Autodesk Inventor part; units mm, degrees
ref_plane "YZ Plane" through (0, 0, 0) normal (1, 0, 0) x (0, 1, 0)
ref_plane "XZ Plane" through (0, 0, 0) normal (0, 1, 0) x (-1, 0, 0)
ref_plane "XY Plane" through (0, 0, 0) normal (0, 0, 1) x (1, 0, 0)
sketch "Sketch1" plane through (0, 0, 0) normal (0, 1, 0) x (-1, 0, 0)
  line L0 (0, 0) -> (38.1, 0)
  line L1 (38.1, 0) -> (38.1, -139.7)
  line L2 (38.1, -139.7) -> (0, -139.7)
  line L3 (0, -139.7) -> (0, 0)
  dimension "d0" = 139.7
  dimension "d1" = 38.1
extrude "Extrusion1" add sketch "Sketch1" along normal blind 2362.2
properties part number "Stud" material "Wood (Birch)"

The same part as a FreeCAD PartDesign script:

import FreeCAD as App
import Part
import Sketcher
from FreeCAD import Vector
Q = App.Units.Quantity

doc = App.newDocument("Part")
params = doc.addObject("Spreadsheet::Sheet", "Params")
for row, (alias, value) in enumerate([
    ("sketch1_width", "1.5 in"),
    ("sketch1_height", "5.5 in"),
    ("pad1_length", "93 in"),
], start=1):
    params.set(f"A{row}", alias)
    params.set(f"B{row}", "=" + value)
    params.setAlias(f"B{row}", alias)

body = doc.addObject("PartDesign::Body", "Body")

# Sketch on XZ plane
sketch1 = body.newObject("Sketcher::SketchObject", "Sketch")
sketch1.AttachmentSupport = (doc.getObject("XZ_Plane"), [""])
sketch1.MapMode = "FlatFace"
sketch1.addGeometry(Part.LineSegment(Vector(-38, 0, 0), Vector(0, 0, 0)), False)
sketch1.addGeometry(Part.LineSegment(Vector(0, 0, 0), Vector(0, -140, 0)), False)
sketch1.addGeometry(Part.LineSegment(Vector(0, -140, 0), Vector(-38, -140, 0)), False)
sketch1.addGeometry(Part.LineSegment(Vector(-38, -140, 0), Vector(-38, 0, 0)), False)
sketch1.addConstraint(Sketcher.Constraint("Coincident", 0, 2, 1, 1))
sketch1.addConstraint(Sketcher.Constraint("Coincident", 1, 2, 2, 1))
sketch1.addConstraint(Sketcher.Constraint("Coincident", 2, 2, 3, 1))
sketch1.addConstraint(Sketcher.Constraint("Coincident", 3, 2, 0, 1))
sketch1.addConstraint(Sketcher.Constraint("Horizontal", 0))
sketch1.addConstraint(Sketcher.Constraint("Vertical", 1))
sketch1.addConstraint(Sketcher.Constraint("Horizontal", 2))
sketch1.addConstraint(Sketcher.Constraint("Vertical", 3))
sketch1.addConstraint(Sketcher.Constraint("Coincident", 0, 2, -1, 1))
sketch1.addConstraint(Sketcher.Constraint("DistanceX", 0, 1, 0, 2, Q("1.5 in")))
sketch1.addConstraint(Sketcher.Constraint("DistanceY", 1, 2, 1, 1, Q("5.5 in")))
sketch1.setExpression("Constraints[9]", "Params.sketch1_width")
sketch1.setExpression("Constraints[10]", "Params.sketch1_height")
pad1 = body.newObject("PartDesign::Pad", "Pad")
pad1.Profile = sketch1
pad1.setExpression("Length", "Params.pad1_length")
pad1.Reversed = True

doc.recompute()
